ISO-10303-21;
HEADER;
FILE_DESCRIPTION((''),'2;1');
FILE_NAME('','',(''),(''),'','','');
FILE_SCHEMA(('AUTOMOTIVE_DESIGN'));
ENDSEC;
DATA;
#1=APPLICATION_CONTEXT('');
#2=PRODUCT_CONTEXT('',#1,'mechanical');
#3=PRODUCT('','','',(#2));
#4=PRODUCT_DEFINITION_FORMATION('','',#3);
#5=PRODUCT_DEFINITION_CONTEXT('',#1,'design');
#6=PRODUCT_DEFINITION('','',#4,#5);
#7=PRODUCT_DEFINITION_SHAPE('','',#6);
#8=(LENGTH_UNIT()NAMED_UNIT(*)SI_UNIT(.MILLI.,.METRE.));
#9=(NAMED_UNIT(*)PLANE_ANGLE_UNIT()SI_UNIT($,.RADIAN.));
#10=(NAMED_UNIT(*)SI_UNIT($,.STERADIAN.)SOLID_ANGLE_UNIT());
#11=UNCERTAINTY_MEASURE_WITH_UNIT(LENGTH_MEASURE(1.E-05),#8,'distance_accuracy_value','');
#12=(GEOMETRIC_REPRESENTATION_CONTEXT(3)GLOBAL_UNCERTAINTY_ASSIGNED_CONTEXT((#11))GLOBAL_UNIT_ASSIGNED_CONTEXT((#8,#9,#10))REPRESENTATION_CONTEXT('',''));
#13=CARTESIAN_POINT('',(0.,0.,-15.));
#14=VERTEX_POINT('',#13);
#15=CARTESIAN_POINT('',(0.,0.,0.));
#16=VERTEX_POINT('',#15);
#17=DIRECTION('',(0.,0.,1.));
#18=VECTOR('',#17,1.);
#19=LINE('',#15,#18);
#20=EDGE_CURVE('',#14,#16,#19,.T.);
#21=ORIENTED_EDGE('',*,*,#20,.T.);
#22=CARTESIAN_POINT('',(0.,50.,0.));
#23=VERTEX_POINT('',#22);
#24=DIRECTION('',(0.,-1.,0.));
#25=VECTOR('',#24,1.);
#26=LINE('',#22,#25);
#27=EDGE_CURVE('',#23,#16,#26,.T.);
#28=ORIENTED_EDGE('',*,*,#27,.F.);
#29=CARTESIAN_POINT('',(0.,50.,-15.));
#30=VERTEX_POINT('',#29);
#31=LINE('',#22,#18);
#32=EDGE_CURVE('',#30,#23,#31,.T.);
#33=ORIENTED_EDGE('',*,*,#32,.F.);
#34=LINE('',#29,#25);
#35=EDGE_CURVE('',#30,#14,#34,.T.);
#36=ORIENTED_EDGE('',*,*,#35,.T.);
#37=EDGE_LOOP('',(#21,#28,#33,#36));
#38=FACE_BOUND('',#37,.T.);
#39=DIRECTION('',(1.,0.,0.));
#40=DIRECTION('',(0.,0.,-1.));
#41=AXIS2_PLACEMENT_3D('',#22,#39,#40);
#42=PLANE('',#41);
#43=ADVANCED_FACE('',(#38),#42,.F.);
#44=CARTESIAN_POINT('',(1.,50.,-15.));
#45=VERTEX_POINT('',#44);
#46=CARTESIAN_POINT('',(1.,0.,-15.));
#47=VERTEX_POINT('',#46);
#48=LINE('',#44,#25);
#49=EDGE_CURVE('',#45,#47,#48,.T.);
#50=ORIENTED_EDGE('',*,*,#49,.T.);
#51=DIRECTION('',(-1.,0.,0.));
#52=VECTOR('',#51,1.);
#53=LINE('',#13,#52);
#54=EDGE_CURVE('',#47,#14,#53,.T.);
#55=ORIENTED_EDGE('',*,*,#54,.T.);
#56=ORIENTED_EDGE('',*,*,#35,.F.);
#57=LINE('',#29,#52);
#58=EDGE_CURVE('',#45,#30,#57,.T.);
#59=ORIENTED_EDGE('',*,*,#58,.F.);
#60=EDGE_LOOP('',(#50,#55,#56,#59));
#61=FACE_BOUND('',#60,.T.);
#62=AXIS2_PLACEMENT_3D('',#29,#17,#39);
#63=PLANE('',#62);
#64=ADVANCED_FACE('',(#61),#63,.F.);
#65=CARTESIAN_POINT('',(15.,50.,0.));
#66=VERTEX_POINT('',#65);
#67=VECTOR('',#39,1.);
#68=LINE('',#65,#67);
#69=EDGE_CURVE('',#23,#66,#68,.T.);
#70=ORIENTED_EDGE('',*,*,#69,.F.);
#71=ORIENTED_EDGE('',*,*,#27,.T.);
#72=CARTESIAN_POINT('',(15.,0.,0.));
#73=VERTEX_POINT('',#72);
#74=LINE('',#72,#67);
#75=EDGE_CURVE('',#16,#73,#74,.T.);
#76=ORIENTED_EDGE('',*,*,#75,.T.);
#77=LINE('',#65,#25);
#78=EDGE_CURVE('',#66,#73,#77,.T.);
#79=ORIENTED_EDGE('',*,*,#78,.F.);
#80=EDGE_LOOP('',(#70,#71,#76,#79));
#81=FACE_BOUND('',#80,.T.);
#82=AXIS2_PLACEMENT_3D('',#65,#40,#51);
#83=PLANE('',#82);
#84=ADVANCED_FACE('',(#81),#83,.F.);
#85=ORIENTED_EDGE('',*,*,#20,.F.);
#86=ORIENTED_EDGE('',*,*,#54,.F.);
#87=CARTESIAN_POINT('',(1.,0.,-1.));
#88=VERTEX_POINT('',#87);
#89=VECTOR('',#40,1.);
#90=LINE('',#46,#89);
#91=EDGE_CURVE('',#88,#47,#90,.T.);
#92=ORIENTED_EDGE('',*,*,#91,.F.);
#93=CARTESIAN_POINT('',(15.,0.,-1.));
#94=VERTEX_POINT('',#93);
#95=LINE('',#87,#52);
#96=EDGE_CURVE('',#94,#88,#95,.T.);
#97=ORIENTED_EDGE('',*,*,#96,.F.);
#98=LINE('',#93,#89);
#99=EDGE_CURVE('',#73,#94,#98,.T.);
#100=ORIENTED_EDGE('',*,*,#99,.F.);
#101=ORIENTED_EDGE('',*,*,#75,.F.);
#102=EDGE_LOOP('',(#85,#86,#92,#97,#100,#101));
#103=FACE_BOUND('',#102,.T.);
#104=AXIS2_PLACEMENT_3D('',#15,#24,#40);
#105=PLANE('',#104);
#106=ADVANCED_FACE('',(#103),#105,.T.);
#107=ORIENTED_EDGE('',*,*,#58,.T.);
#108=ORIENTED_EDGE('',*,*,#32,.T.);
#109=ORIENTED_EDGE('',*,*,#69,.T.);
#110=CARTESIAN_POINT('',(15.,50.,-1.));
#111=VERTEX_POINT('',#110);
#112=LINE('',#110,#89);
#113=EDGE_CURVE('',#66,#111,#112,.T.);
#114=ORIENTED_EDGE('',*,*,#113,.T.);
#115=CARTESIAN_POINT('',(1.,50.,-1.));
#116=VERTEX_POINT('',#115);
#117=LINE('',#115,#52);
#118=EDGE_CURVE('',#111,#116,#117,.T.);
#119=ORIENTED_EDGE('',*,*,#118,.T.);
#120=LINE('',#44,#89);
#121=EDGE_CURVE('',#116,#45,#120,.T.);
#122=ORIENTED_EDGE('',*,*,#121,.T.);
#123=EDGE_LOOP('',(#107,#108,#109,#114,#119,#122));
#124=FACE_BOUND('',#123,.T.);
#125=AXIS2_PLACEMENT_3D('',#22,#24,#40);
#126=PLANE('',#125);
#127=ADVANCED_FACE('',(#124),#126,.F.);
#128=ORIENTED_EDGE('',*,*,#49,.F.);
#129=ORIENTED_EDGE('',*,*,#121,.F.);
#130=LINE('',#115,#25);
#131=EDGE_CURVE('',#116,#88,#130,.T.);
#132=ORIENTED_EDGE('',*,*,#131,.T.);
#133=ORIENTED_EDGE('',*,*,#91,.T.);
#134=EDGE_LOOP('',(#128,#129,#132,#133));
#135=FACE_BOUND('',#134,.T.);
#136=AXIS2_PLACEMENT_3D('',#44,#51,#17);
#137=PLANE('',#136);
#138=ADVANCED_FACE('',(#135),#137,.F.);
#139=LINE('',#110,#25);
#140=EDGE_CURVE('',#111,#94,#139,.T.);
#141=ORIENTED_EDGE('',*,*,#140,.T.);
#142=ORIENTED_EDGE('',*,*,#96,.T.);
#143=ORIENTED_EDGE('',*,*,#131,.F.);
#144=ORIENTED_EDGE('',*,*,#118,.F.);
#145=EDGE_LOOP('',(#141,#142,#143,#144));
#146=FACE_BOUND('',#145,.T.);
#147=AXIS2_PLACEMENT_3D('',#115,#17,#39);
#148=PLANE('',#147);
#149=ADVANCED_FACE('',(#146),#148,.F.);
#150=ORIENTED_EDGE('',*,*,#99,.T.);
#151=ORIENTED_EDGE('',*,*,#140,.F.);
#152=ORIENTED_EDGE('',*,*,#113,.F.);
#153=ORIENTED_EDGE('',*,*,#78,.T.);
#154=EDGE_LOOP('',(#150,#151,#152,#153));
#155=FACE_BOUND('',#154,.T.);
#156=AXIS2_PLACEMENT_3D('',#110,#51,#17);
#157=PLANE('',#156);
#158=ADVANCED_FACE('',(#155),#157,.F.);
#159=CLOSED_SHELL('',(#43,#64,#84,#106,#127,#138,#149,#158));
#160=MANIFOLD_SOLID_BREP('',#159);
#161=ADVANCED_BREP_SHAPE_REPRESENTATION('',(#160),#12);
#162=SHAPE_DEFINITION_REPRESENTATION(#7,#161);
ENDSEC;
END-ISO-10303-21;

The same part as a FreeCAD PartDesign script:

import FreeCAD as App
import Part
import Sketcher
from FreeCAD import Vector
Q = App.Units.Quantity

doc = App.newDocument("Part")
body = doc.addObject("PartDesign::Body", "Body")

# Sketch on XZ plane
sketch1 = body.newObject("Sketcher::SketchObject", "Sketch")
sketch1.AttachmentSupport = (doc.getObject("XZ_Plane"), [""])
sketch1.MapMode = "FlatFace"
sketch1.addGeometry([
    Part.LineSegment(Vector(0, -15, 0), Vector(0, 0, 0)),  # 0
    Part.LineSegment(Vector(0, 0, 0), Vector(15, 0, 0)),  # 1
    Part.LineSegment(Vector(15, 0, 0), Vector(15, -1, 0)),  # 2
    Part.LineSegment(Vector(15, -1, 0), Vector(1, -1, 0)),  # 3
    Part.LineSegment(Vector(1, -1, 0), Vector(1, -15, 0)),  # 4
    Part.LineSegment(Vector(1, -15, 0), Vector(0, -15, 0)),  # 5
], False)
sketch1.addConstraint([
    Sketcher.Constraint("Coincident", 0, 2, 1, 1),
    Sketcher.Constraint("Coincident", 1, 2, 2, 1),
    Sketcher.Constraint("Coincident", 2, 2, 3, 1),
    Sketcher.Constraint("Coincident", 3, 2, 4, 1),
    Sketcher.Constraint("Coincident", 4, 2, 5, 1),
    Sketcher.Constraint("Coincident", 5, 2, 0, 1),
    Sketcher.Constraint("Vertical", 0),
    Sketcher.Constraint("Horizontal", 1),
    Sketcher.Constraint("Vertical", 2),
    Sketcher.Constraint("Horizontal", 3),
    Sketcher.Constraint("Vertical", 4),
    Sketcher.Constraint("Horizontal", 5),
    Sketcher.Constraint("Coincident", 0, 2, -1, 1),
    Sketcher.Constraint("Equal", 1, 0),
    Sketcher.Constraint("Equal", 5, 2),
    Sketcher.Constraint("DistanceX", 1, 1, 1, 2, Q("15 mm")),
    Sketcher.Constraint("DistanceX", 3, 2, 3, 1, Q("14 mm")),
])
pad1 = body.newObject("PartDesign::Pad", "Pad")
pad1.Profile = sketch1
pad1.Length = 50
pad1.Reversed = True

doc.recompute()
